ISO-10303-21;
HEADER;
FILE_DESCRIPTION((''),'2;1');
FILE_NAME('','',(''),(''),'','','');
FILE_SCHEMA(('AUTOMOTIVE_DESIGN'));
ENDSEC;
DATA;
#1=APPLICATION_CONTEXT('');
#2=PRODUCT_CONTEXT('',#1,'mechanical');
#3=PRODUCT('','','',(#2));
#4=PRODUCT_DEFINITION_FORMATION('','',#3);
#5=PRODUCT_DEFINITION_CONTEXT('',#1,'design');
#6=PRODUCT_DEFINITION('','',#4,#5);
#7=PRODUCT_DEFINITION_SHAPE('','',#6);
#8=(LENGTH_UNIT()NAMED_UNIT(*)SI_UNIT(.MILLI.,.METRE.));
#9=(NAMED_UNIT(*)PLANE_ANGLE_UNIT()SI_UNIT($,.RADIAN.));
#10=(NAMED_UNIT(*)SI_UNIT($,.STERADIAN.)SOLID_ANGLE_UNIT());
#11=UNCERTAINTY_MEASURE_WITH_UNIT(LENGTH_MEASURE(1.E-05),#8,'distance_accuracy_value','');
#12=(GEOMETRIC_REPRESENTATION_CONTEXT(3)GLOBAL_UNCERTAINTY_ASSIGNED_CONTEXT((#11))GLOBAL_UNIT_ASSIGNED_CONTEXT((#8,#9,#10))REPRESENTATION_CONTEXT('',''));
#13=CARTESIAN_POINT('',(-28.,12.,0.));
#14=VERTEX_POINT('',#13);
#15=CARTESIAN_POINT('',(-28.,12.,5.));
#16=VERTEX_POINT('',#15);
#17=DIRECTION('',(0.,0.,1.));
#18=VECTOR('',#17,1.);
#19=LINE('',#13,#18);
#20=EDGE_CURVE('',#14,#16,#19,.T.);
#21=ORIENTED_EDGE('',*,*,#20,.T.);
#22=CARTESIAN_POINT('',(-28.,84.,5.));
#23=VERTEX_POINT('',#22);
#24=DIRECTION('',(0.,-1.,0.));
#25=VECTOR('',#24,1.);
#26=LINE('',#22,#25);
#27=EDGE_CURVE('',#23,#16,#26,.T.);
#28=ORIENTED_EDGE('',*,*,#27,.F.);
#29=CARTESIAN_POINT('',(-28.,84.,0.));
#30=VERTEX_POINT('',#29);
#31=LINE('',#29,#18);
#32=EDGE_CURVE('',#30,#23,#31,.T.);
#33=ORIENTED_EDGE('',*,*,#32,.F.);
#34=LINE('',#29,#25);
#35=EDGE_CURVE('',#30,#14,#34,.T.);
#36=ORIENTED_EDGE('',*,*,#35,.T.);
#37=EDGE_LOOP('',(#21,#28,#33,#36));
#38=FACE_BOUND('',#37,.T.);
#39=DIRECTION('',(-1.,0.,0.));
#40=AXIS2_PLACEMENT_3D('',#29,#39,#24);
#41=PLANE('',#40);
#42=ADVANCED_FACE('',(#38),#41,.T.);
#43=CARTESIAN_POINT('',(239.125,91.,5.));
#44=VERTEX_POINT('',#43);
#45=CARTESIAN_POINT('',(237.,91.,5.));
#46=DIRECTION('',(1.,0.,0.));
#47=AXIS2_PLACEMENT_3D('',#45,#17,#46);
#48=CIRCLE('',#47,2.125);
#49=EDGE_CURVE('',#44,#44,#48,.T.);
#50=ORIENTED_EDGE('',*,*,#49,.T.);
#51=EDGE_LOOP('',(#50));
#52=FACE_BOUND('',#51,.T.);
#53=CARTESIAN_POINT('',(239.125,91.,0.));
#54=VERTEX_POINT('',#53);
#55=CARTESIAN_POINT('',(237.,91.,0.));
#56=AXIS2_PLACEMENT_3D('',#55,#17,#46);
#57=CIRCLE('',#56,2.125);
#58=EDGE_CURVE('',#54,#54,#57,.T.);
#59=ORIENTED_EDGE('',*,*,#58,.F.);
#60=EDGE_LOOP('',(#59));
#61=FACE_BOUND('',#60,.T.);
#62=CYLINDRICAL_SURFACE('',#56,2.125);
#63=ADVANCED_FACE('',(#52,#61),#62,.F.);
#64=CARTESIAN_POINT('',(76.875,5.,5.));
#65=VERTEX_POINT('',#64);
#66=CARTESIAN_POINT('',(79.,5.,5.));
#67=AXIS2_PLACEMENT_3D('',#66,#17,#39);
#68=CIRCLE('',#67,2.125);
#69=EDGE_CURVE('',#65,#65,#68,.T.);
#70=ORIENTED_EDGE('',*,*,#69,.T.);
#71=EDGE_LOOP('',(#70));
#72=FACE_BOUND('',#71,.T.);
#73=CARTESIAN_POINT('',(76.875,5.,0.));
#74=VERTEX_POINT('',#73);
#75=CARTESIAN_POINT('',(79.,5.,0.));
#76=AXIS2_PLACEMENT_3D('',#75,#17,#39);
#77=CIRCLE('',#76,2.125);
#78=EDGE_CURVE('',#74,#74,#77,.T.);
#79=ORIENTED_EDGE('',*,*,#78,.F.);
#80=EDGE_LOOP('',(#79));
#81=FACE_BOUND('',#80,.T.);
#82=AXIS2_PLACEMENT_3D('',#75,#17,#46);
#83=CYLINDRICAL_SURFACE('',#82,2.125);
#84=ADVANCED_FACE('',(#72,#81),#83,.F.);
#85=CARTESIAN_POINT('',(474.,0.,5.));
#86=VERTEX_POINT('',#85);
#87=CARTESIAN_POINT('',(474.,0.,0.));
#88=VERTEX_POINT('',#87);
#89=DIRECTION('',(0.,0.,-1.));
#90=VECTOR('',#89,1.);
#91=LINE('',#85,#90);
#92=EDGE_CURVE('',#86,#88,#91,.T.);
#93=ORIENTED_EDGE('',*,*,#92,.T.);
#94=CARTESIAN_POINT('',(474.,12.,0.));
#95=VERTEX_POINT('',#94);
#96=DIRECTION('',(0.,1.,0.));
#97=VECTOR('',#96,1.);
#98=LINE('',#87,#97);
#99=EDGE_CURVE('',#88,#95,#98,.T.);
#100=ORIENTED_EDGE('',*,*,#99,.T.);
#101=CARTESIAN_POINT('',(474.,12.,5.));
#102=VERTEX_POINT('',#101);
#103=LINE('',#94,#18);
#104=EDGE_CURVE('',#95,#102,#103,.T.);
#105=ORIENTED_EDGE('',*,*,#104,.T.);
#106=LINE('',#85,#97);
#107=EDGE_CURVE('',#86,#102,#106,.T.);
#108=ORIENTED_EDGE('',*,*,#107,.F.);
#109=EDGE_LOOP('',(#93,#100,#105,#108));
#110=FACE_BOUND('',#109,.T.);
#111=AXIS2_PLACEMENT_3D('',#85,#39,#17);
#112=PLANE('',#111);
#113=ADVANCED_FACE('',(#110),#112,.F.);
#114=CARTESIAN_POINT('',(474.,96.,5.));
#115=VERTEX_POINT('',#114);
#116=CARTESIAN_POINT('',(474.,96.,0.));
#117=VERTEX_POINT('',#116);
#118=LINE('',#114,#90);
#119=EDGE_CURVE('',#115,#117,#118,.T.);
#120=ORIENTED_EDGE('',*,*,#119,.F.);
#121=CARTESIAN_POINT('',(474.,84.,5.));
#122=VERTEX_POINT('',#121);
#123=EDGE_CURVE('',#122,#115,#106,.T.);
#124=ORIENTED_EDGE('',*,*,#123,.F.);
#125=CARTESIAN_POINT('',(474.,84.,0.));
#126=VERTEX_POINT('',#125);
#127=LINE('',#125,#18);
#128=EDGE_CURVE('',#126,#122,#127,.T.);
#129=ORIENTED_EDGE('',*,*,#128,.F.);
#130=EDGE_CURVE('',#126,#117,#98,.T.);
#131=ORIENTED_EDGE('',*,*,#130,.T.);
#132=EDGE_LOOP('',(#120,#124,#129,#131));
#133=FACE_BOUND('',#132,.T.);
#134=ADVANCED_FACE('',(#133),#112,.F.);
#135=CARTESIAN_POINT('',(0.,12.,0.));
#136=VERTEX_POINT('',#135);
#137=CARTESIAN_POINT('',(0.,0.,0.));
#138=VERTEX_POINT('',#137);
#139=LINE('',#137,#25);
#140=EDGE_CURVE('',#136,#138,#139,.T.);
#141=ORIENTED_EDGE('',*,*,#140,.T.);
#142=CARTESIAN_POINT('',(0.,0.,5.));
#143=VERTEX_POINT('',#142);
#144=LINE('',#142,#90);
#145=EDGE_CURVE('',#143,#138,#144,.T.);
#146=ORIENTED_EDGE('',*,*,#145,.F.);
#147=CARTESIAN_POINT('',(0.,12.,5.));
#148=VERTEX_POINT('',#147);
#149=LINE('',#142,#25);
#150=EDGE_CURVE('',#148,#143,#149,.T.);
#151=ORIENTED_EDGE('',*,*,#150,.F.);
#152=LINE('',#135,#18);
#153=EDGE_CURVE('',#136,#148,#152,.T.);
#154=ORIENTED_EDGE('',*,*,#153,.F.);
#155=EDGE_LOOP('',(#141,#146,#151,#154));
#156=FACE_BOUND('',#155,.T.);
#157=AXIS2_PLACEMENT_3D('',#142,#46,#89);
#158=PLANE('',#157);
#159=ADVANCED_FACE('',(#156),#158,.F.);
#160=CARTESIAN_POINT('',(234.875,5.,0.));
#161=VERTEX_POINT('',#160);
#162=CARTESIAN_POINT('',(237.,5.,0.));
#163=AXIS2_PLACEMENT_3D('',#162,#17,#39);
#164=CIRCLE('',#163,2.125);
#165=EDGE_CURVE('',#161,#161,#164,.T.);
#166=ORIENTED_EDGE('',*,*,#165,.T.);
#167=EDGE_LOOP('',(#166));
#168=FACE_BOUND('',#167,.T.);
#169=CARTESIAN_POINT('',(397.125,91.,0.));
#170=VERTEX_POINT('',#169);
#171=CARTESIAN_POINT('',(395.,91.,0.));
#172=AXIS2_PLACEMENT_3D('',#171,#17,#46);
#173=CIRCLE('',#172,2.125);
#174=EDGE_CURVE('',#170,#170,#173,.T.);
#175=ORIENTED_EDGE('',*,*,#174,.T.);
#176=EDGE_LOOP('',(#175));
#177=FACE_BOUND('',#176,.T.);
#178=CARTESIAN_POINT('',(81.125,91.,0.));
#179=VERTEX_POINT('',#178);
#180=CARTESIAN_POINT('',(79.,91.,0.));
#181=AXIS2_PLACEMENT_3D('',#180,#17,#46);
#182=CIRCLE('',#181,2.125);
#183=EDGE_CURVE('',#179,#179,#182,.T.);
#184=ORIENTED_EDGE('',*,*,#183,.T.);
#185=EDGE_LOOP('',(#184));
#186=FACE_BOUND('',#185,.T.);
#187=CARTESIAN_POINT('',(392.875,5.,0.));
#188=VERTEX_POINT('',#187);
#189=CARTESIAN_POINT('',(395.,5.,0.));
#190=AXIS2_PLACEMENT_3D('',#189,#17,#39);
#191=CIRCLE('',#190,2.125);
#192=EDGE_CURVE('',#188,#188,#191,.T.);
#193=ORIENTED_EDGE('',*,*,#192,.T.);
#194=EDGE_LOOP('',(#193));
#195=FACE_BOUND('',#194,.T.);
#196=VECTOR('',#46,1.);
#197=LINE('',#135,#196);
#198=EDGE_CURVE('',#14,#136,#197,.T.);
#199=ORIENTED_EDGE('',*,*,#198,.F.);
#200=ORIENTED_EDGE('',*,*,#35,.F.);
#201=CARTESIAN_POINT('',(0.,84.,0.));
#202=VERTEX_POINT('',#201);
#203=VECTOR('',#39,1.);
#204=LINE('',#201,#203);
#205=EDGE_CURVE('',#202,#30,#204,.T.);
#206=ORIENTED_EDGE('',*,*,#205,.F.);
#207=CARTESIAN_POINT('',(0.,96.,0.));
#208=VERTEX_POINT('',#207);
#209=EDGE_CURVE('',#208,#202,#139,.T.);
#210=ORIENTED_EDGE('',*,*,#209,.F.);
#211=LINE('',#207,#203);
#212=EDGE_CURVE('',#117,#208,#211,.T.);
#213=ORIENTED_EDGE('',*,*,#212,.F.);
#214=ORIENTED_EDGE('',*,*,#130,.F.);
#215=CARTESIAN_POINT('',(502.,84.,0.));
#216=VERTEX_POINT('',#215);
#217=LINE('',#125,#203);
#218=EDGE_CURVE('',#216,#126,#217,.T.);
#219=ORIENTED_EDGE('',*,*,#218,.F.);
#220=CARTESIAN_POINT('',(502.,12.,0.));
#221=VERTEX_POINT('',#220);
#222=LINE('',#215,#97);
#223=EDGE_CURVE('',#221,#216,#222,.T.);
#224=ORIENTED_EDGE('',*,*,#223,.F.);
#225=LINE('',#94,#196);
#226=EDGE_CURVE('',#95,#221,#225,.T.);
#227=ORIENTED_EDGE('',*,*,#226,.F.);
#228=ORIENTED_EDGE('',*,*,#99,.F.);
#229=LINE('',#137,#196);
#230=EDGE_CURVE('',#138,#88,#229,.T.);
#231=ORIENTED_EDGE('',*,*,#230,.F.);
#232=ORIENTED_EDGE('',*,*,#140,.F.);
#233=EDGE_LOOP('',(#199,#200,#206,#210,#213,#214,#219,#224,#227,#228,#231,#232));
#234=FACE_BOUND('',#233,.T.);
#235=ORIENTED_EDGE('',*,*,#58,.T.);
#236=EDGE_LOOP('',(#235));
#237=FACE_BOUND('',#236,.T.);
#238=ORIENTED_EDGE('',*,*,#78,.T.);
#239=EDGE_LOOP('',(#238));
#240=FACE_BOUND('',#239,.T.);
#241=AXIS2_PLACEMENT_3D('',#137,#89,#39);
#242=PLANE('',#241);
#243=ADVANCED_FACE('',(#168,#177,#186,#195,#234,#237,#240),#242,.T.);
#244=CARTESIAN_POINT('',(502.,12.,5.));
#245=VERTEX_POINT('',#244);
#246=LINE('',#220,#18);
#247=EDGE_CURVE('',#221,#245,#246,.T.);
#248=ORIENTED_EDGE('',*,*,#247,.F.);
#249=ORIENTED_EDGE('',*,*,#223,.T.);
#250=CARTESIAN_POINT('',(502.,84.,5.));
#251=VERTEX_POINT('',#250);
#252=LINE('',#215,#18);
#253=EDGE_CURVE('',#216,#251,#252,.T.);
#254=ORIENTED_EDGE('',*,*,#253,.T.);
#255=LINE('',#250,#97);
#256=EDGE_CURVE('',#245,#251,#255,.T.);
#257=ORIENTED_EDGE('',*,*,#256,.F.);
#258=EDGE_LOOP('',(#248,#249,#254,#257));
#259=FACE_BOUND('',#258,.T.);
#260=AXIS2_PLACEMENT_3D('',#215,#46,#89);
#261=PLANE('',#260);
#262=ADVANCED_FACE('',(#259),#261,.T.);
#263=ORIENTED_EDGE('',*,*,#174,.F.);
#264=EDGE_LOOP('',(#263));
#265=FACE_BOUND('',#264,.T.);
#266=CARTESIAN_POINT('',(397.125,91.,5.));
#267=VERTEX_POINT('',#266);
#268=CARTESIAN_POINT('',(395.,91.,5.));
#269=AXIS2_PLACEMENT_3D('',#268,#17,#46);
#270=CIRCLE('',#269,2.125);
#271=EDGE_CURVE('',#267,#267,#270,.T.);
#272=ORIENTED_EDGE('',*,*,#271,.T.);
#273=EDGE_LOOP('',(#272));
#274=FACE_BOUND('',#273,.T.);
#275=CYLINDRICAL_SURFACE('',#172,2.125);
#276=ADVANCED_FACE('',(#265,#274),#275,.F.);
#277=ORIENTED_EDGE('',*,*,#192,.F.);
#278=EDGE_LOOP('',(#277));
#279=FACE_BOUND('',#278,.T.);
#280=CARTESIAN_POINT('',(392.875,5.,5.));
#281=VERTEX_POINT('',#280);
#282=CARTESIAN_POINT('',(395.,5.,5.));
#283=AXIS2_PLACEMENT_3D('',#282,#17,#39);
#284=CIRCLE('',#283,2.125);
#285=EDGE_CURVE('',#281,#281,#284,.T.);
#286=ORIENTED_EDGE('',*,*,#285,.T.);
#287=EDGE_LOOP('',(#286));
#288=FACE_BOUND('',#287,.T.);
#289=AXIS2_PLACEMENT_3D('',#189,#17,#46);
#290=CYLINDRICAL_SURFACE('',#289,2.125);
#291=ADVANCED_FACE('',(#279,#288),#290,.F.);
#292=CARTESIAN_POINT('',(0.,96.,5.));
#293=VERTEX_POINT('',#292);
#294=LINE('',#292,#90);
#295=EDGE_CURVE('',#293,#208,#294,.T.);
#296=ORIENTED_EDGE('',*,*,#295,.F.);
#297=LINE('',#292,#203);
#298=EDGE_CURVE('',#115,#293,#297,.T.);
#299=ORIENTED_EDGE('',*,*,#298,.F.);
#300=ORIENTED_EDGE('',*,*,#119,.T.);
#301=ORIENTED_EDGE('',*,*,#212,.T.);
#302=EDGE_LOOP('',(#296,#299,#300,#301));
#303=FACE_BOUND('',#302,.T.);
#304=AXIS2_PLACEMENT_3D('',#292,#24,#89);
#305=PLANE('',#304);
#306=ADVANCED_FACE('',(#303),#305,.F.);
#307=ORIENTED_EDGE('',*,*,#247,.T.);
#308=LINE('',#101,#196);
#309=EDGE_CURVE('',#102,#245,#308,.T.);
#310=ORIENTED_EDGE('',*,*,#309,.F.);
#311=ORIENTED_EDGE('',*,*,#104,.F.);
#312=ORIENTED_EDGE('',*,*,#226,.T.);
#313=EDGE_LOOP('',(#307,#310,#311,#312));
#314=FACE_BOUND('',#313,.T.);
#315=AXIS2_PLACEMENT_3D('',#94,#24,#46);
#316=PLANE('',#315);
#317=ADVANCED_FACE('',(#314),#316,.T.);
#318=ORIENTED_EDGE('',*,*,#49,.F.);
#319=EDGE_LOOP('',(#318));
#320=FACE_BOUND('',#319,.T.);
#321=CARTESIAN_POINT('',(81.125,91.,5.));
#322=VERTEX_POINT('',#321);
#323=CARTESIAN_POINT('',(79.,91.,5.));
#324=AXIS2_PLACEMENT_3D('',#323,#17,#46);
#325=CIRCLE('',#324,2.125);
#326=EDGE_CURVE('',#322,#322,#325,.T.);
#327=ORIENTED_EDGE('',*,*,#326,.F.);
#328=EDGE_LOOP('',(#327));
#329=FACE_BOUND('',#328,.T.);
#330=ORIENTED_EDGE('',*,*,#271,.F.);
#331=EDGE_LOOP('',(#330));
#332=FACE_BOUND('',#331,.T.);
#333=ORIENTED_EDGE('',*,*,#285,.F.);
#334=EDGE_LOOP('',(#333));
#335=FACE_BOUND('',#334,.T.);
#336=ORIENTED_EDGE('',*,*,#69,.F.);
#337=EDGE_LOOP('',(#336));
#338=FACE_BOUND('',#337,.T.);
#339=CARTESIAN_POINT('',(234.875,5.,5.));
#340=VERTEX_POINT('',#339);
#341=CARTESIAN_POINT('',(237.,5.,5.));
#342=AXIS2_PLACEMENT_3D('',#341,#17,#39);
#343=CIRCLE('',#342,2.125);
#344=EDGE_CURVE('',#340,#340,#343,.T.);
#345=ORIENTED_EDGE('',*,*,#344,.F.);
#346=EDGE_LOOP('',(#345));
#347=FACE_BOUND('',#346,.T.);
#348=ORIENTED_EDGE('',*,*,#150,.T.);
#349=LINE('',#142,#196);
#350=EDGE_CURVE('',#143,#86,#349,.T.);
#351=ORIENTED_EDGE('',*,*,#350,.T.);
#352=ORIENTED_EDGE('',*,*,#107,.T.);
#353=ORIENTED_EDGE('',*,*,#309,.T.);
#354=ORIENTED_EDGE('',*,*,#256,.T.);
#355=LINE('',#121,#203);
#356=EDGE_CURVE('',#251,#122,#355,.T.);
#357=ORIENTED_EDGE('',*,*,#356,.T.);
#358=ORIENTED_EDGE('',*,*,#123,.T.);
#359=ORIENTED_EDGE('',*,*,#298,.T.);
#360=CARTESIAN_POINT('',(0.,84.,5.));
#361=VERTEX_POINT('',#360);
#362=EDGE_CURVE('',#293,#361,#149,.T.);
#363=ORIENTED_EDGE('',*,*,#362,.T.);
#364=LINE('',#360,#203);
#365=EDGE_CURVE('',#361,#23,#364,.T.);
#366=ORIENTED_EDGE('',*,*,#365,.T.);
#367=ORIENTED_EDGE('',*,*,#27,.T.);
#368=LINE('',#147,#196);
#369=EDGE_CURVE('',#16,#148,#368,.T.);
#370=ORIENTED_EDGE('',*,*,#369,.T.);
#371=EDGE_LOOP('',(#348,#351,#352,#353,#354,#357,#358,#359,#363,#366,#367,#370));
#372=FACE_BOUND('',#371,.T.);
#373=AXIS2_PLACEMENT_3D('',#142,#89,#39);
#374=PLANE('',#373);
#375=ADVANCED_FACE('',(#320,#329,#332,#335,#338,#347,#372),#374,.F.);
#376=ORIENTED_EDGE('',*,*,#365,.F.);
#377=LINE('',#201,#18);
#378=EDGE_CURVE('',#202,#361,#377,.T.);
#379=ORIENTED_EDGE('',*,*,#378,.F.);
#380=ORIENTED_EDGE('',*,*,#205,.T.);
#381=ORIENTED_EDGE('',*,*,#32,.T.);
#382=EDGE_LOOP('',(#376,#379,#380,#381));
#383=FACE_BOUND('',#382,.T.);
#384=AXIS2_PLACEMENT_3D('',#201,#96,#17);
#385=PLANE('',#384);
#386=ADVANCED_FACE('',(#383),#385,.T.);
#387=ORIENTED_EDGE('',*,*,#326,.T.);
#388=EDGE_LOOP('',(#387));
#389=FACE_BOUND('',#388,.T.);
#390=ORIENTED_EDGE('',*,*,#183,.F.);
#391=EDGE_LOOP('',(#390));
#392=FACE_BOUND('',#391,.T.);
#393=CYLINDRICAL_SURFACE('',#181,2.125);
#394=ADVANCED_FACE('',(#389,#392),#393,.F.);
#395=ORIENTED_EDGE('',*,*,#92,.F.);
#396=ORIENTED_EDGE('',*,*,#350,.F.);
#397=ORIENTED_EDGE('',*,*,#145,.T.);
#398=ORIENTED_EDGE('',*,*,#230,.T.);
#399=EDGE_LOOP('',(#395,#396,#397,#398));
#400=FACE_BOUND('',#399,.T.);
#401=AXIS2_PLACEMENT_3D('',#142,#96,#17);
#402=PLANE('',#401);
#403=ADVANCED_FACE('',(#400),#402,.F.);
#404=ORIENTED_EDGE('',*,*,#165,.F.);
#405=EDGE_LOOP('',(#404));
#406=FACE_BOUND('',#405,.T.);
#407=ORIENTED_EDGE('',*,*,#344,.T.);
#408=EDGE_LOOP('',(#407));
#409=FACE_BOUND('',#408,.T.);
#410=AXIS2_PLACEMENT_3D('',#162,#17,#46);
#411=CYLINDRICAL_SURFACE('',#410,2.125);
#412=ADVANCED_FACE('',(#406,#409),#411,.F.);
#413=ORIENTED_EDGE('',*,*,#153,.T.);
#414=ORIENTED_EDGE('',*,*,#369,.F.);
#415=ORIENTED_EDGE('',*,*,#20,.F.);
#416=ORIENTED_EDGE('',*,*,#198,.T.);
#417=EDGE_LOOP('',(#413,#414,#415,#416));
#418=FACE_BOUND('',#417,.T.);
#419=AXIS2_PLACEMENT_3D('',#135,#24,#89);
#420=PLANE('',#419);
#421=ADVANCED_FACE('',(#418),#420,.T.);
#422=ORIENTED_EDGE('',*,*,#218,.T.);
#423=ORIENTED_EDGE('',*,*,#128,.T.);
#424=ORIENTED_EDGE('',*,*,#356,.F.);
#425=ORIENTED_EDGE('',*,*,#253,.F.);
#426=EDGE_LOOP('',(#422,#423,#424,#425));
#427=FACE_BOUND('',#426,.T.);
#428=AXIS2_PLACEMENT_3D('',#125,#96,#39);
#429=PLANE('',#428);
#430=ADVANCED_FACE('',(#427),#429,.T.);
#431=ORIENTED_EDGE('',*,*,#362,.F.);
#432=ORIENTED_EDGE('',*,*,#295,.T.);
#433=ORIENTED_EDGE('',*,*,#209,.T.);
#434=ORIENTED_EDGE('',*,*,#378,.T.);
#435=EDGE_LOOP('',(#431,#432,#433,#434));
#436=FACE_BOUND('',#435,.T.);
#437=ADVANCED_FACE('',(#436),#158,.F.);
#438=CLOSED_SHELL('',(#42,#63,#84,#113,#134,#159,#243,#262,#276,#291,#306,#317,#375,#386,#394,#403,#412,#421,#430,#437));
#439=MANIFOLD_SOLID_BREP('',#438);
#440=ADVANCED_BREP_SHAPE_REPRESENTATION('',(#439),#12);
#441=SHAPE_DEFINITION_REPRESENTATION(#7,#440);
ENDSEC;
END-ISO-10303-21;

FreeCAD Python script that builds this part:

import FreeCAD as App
import Part
import Sketcher

doc = App.newDocument("Part")
body = doc.addObject("PartDesign::Body", "Body")

# Sketch on XY plane
sketch1 = doc.addObject("Sketcher::SketchObject", "Sketch")
body.addObject(sketch1)
sketch1.AttachmentSupport = (doc.XY_Plane, [""])
sketch1.MapMode = "FlatFace"
sketch1.addGeometry(Part.LineSegment(App.Vector(0, 96, 0), App.Vector(0, 0, 0)), False)
sketch1.addGeometry(Part.LineSegment(App.Vector(0, 0, 0), App.Vector(474, 0, 0)), False)
sketch1.addGeometry(Part.LineSegment(App.Vector(474, 0, 0), App.Vector(474, 96, 0)), False)
sketch1.addGeometry(Part.LineSegment(App.Vector(474, 96, 0), App.Vector(0, 96, 0)), False)
sketch1.addConstraint(Sketcher.Constraint("Coincident", 0, 2, 1, 1))
sketch1.addConstraint(Sketcher.Constraint("Coincident", 1, 2, 2, 1))
sketch1.addConstraint(Sketcher.Constraint("Coincident", 2, 2, 3, 1))
sketch1.addConstraint(Sketcher.Constraint("Coincident", 3, 2, 0, 1))
sketch1.addConstraint(Sketcher.Constraint("Vertical", 0))
sketch1.addConstraint(Sketcher.Constraint("Horizontal", 1))
sketch1.addConstraint(Sketcher.Constraint("Vertical", 2))
sketch1.addConstraint(Sketcher.Constraint("Horizontal", 3))
sketch1.addConstraint(Sketcher.Constraint("Coincident", 0, 2, -1, 1))
sketch1.addConstraint(Sketcher.Constraint("DistanceX", 1, 1, 1, 2, 474.0))
sketch1.addConstraint(Sketcher.Constraint("DistanceY", 0, 2, 0, 1, 96.0))
pad1 = doc.addObject("PartDesign::Pad", "Pad")
body.addObject(pad1)
pad1.Profile = sketch1
pad1.Length = 5

# Sketch on XY plane
sketch2 = doc.addObject("Sketcher::SketchObject", "Sketch001")
body.addObject(sketch2)
sketch2.AttachmentSupport = (doc.XY_Plane, [""])
sketch2.MapMode = "FlatFace"
sketch2.AttachmentOffset = App.Placement(App.Vector(0, 0, 5), App.Rotation())
sketch2.addGeometry(Part.Circle(App.Vector(79, 91, 0), App.Vector(0, 0, 1), 2.1), False)
sketch2.addGeometry(Part.Circle(App.Vector(237, 91, 0), App.Vector(0, 0, 1), 2.1), False)
sketch2.addGeometry(Part.Circle(App.Vector(395, 91, 0), App.Vector(0, 0, 1), 2.1), False)
sketch2.addGeometry(Part.Circle(App.Vector(395, 5, 0), App.Vector(0, 0, 1), 2.1), False)
sketch2.addGeometry(Part.Circle(App.Vector(237, 5, 0), App.Vector(0, 0, 1), 2.1), False)
sketch2.addGeometry(Part.Circle(App.Vector(79, 5, 0), App.Vector(0, 0, 1), 2.1), False)
sketch2.addConstraint(Sketcher.Constraint("Equal", 0, 1))
sketch2.addConstraint(Sketcher.Constraint("Equal", 1, 2))
sketch2.addConstraint(Sketcher.Constraint("Equal", 2, 3))
sketch2.addConstraint(Sketcher.Constraint("Equal", 3, 4))
sketch2.addConstraint(Sketcher.Constraint("Equal", 4, 5))
sketch2.addConstraint(Sketcher.Constraint("Horizontal", 0, 3, 1, 3))
sketch2.addConstraint(Sketcher.Constraint("Horizontal", 1, 3, 2, 3))
sketch2.addConstraint(Sketcher.Constraint("Horizontal", 3, 3, 4, 3))
sketch2.addConstraint(Sketcher.Constraint("Horizontal", 4, 3, 5, 3))
sketch2.addConstraint(Sketcher.Constraint("Vertical", 2, 3, 3, 3))
sketch2.addConstraint(Sketcher.Constraint("Vertical", 1, 3, 4, 3))
sketch2.addConstraint(Sketcher.Constraint("Vertical", 0, 3, 5, 3))
sketch2.addConstraint(Sketcher.Constraint("Diameter", 0, 4.25))
sketch2.addConstraint(Sketcher.Constraint("DistanceX", -1, 1, 0, 3, 79.0))
sketch2.addConstraint(Sketcher.Constraint("DistanceY", -1, 1, 0, 3, 91.0))
sketch2.addConstraint(Sketcher.Constraint("DistanceX", -1, 1, 1, 3, 237.0))
sketch2.addConstraint(Sketcher.Constraint("DistanceX", -1, 1, 2, 3, 395.0))
sketch2.addConstraint(Sketcher.Constraint("DistanceY", -1, 1, 3, 3, 5.0))
pocket1 = doc.addObject("PartDesign::Pocket", "Pocket")
body.addObject(pocket1)
pocket1.Profile = sketch2
pocket1.Length = 5

# Sketch on XY plane
sketch3 = doc.addObject("Sketcher::SketchObject", "Sketch002")
body.addObject(sketch3)
sketch3.AttachmentSupport = (doc.XY_Plane, [""])
sketch3.MapMode = "FlatFace"
sketch3.AttachmentOffset = App.Placement(App.Vector(0, 0, 5), App.Rotation())
sketch3.addGeometry(Part.LineSegment(App.Vector(474, 84, 0), App.Vector(474, 12, 0)), False)
sketch3.addGeometry(Part.LineSegment(App.Vector(474, 12, 0), App.Vector(502, 12, 0)), False)
sketch3.addGeometry(Part.LineSegment(App.Vector(502, 12, 0), App.Vector(502, 84, 0)), False)
sketch3.addGeometry(Part.LineSegment(App.Vector(502, 84, 0), App.Vector(474, 84, 0)), False)
sketch3.addGeometry(Part.LineSegment(App.Vector(-28, 84, 0), App.Vector(-28, 12, 0)), False)
sketch3.addGeometry(Part.LineSegment(App.Vector(-28, 12, 0), App.Vector(0, 12, 0)), False)
sketch3.addGeometry(Part.LineSegment(App.Vector(0, 12, 0), App.Vector(0, 84, 0)), False)
sketch3.addGeometry(Part.LineSegment(App.Vector(0, 84, 0), App.Vector(-28, 84, 0)), False)
sketch3.addConstraint(Sketcher.Constraint("Coincident", 0, 2, 1, 1))
sketch3.addConstraint(Sketcher.Constraint("Coincident", 1, 2, 2, 1))
sketch3.addConstraint(Sketcher.Constraint("Coincident", 2, 2, 3, 1))
sketch3.addConstraint(Sketcher.Constraint("Coincident", 3, 2, 0, 1))
sketch3.addConstraint(Sketcher.Constraint("Coincident", 4, 2, 5, 1))
sketch3.addConstraint(Sketcher.Constraint("Coincident", 5, 2, 6, 1))
sketch3.addConstraint(Sketcher.Constraint("Coincident", 6, 2, 7, 1))
sketch3.addConstraint(Sketcher.Constraint("Coincident", 7, 2, 4, 1))
sketch3.addConstraint(Sketcher.Constraint("Vertical", 0))
sketch3.addConstraint(Sketcher.Constraint("Horizontal", 1))
sketch3.addConstraint(Sketcher.Constraint("Vertical", 2))
sketch3.addConstraint(Sketcher.Constraint("Horizontal", 3))
sketch3.addConstraint(Sketcher.Constraint("Vertical", 4))
sketch3.addConstraint(Sketcher.Constraint("Horizontal", 5))
sketch3.addConstraint(Sketcher.Constraint("Vertical", 6))
sketch3.addConstraint(Sketcher.Constraint("Horizontal", 7))
sketch3.addConstraint(Sketcher.Constraint("PointOnObject", 5, 2, -2))
sketch3.addConstraint(Sketcher.Constraint("Horizontal", 1, 2, 4, 2))
sketch3.addConstraint(Sketcher.Constraint("Horizontal", 3, 2, 6, 2))
sketch3.addConstraint(Sketcher.Constraint("Equal", 3, 5))
sketch3.addConstraint(Sketcher.Constraint("DistanceX", 1, 1, 1, 2, 28.0))
sketch3.addConstraint(Sketcher.Constraint("DistanceY", 0, 2, 0, 1, 72.0))
sketch3.addConstraint(Sketcher.Constraint("DistanceX", -1, 1, 0, 2, 474.0))
sketch3.addConstraint(Sketcher.Constraint("DistanceY", -1, 1, 0, 2, 12.0))
pad2 = doc.addObject("PartDesign::Pad", "Pad001")
body.addObject(pad2)
pad2.Profile = sketch3
pad2.Length = 5
pad2.Reversed = True

doc.recompute()
